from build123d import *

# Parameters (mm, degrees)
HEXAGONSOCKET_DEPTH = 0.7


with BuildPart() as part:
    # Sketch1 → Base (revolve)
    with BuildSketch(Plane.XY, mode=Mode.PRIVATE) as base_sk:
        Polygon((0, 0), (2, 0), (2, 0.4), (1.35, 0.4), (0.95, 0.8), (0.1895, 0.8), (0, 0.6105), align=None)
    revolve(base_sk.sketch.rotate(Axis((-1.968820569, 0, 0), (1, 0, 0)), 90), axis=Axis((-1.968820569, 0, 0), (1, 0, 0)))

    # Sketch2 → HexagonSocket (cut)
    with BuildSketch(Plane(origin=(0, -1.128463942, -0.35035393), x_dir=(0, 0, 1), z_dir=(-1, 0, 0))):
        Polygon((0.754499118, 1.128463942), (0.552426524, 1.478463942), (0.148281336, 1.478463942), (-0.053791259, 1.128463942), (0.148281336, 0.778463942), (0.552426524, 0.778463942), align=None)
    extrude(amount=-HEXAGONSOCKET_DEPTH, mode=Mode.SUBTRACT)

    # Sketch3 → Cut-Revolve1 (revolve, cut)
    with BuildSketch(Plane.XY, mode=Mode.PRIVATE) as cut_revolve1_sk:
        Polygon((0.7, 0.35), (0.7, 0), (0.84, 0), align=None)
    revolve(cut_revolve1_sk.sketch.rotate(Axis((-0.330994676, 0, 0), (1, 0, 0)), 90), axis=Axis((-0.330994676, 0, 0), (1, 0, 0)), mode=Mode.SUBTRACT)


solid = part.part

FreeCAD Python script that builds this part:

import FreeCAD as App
import Part
import Sketcher
Q = App.Units.Quantity


def add_polygon(sketch, points):
    """Adds a closed chain of lines whose ends are joined by coincident constraints."""
    first, n = sketch.GeometryCount, len(points)
    for a, b in zip(points, points[1:] + points[:1]):
        sketch.addGeometry(Part.LineSegment(App.Vector(*a, 0), App.Vector(*b, 0)), False)
    for i in range(n):
        sketch.addConstraint(Sketcher.Constraint("Coincident", first + i, 2, first + (i + 1) % n, 1))

doc = App.newDocument("Part")
body = doc.addObject("PartDesign::Body", "Body")

# Sketch on XY plane
sketch1 = body.newObject("Sketcher::SketchObject", "Sketch")
sketch1.AttachmentSupport = (doc.getObject("XY_Plane"), [""])
sketch1.MapMode = "FlatFace"
add_polygon(sketch1, [(0, 0), (2, 0), (2, 0.4), (1.35, 0.4), (0.95, 0.8), (0.19, 0.8), (0, 0.61)])  # lines 0-6
sketch1.addConstraint([
    Sketcher.Constraint("Horizontal", 0),
    Sketcher.Constraint("Vertical", 1),
    Sketcher.Constraint("Horizontal", 2),
    Sketcher.Constraint("Horizontal", 4),
    Sketcher.Constraint("Vertical", 6),
    Sketcher.Constraint("Coincident", 6, 2, -1, 1),
    Sketcher.Constraint("Perpendicular", 3, 5),
    Sketcher.Constraint("DistanceX", 0, 1, 0, 2, Q("2 mm")),
    Sketcher.Constraint("Angle", 3, Q("135 deg")),
    Sketcher.Constraint("DistanceY", 1, 1, 1, 2, Q("0.4 mm")),
    Sketcher.Constraint("DistanceX", 2, 2, 2, 1, Q("0.65 mm")),
    Sketcher.Constraint("DistanceY", -1, 1, 3, 2, Q("0.8 mm")),
    Sketcher.Constraint("DistanceX", 4, 2, 4, 1, Q("0.7605 mm")),
])
revolution = body.newObject("PartDesign::Revolution", "Revolution")
revolution.Profile = sketch1
revolution.ReferenceAxis = (sketch1, ["H_Axis"])
revolution.Angle = 360

# Sketch on YZ plane
sketch2 = body.newObject("Sketcher::SketchObject", "Sketch001")
sketch2.AttachmentSupport = (doc.getObject("YZ_Plane"), [""])
sketch2.MapMode = "FlatFace"
add_polygon(sketch2, [(0, 0.4), (0.35, 0.2), (0.35, -0.2), (0, -0.4), (-0.35, -0.2), (-0.35, 0.2)])  # lines 0-5
sketch2.addConstraint([
    Sketcher.Constraint("Vertical", 1),
    Sketcher.Constraint("Vertical", 4),
    Sketcher.Constraint("Symmetric", 0, 2, 3, 2, -1, 1),
    Sketcher.Constraint("Symmetric", 2, 2, 5, 2, -1, 1),
    Sketcher.Constraint("PointOnObject", 2, 2, -2),
    Sketcher.Constraint("Parallel", 2, 5),
    Sketcher.Constraint("Horizontal", 1, 2, 3, 2),
    Sketcher.Constraint("Angle", 0, Q("-30 deg")),
    Sketcher.Constraint("DistanceX", 3, 2, 1, 2, Q("0.7 mm")),
    Sketcher.Constraint("DistanceY", 1, 2, 1, 1, Q("0.404145 mm")),
])
pocket1 = body.newObject("PartDesign::Pocket", "Pocket")
pocket1.Profile = sketch2
pocket1.Length = 0.7
pocket1.Reversed = True

# Sketch on XY plane
sketch3 = body.newObject("Sketcher::SketchObject", "Sketch002")
sketch3.AttachmentSupport = (doc.getObject("XY_Plane"), [""])
sketch3.MapMode = "FlatFace"
add_polygon(sketch3, [(0.7, 0.35), (0.7, 0), (0.84, 0)])  # lines 0-2
sketch3.addConstraint([
    Sketcher.Constraint("Vertical", 0),
    Sketcher.Constraint("Horizontal", 1),
    Sketcher.Constraint("PointOnObject", 0, 2, -1),
    Sketcher.Constraint("DistanceX", 1, 1, 1, 2, Q("0.14 mm")),
    Sketcher.Constraint("DistanceY", 0, 2, 0, 1, Q("0.35 mm")),
    Sketcher.Constraint("DistanceX", -1, 1, 0, 2, Q("0.7 mm")),
])
groove = body.newObject("PartDesign::Groove", "Groove")
groove.Profile = sketch3
groove.ReferenceAxis = (sketch3, ["H_Axis"])
groove.Angle = 360

doc.recompute()
